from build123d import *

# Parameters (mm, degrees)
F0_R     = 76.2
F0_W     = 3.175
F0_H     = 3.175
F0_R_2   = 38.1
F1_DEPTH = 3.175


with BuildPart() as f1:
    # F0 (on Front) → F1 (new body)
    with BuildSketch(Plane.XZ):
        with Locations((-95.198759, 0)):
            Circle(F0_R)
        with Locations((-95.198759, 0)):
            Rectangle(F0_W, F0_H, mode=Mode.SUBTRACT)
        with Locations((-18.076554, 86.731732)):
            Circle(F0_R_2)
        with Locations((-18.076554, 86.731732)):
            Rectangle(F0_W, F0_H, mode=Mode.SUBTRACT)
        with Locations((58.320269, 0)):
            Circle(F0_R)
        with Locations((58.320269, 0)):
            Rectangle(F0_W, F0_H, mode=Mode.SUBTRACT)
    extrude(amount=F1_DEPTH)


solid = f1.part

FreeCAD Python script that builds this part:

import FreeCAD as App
import Part
import Sketcher
Q = App.Units.Quantity


def add_polygon(sketch, points):
    """Adds a closed chain of lines whose ends are joined by coincident constraints."""
    first, n = sketch.GeometryCount, len(points)
    for a, b in zip(points, points[1:] + points[:1]):
        sketch.addGeometry(Part.LineSegment(App.Vector(*a, 0), App.Vector(*b, 0)), False)
    for i in range(n):
        sketch.addConstraint(Sketcher.Constraint("Coincident", first + i, 2, first + (i + 1) % n, 1))

doc = App.newDocument("Part")
body = doc.addObject("PartDesign::Body", "Body")
body.AllowCompound = True

sketch1 = doc.addObject("Sketcher::SketchObject", "Sketch")
body.addObject(sketch1)
sketch1.AttachmentSupport = (doc.XZ_Plane, [""])
sketch1.MapMode = "FlatFace"
sketch1.addGeometry(Part.Circle(App.Vector(-95.2, 0, 0), App.Vector(0, 0, 1), 76.2), False)
add_polygon(sketch1, [(-93.6, -1.6), (-96.8, -1.6), (-96.8, 1.6), (-93.6, 1.6)])
sketch1.addGeometry(Part.Circle(App.Vector(-18.1, 86.7, 0), App.Vector(0, 0, 1), 38.1), False)
add_polygon(sketch1, [(-16.5, 85.1), (-19.7, 85.1), (-19.7, 88.3), (-16.5, 88.3)])
sketch1.addGeometry(Part.Circle(App.Vector(58.3, 0, 0), App.Vector(0, 0, 1), 76.2), False)
add_polygon(sketch1, [(59.9, -1.6), (56.7, -1.6), (56.7, 1.6), (59.9, 1.6)])
sketch1.addConstraint([
    Sketcher.Constraint("Horizontal", 1),
    Sketcher.Constraint("Vertical", 2),
    Sketcher.Constraint("Horizontal", 3),
    Sketcher.Constraint("Vertical", 4),
    Sketcher.Constraint("Horizontal", 6),
    Sketcher.Constraint("Vertical", 7),
    Sketcher.Constraint("Horizontal", 8),
    Sketcher.Constraint("Vertical", 9),
    Sketcher.Constraint("Horizontal", 11),
    Sketcher.Constraint("Vertical", 12),
    Sketcher.Constraint("Horizontal", 13),
    Sketcher.Constraint("Vertical", 14),
    Sketcher.Constraint("Equal", 0, 10),
    Sketcher.Constraint("PointOnObject", 0, 3, -1),
    Sketcher.Constraint("PointOnObject", 10, 3, -1),
    Sketcher.Constraint("Horizontal", 4, 2, 11, 2),
    Sketcher.Constraint("Horizontal", 3, 2, 12, 2),
    Sketcher.Constraint("Equal", 3, 6),
    Sketcher.Constraint("Equal", 8, 11),
    Sketcher.Constraint("Equal", 13, 2),
    Sketcher.Constraint("Equal", 4, 7),
    Sketcher.Constraint("Diameter", 0, Q("6 in")),
    Sketcher.Constraint("Diameter", 5, Q("3 in")),
    Sketcher.Constraint("DistanceX", 1, 2, 1, 1, Q("0.125 in")),
    Sketcher.Constraint("DistanceY", 1, 2, -1, 1, Q("0.0625 in")),
    Sketcher.Constraint("DistanceX", 1, 2, 0, 3, Q("0.0625 in")),
    Sketcher.Constraint("DistanceX", 6, 2, 5, 3, Q("0.0625 in")),
    Sketcher.Constraint("DistanceY", 6, 2, 5, 3, Q("0.0625 in")),
    Sketcher.Constraint("DistanceX", 11, 2, 10, 3, Q("0.0625 in")),
    Sketcher.Constraint("DistanceX", 0, 3, -1, 1, Q("95.198759 mm")),
    Sketcher.Constraint("DistanceY", -1, 1, 5, 3, Q("86.731732 mm")),
    Sketcher.Constraint("DistanceX", -1, 1, 10, 3, Q("58.320269 mm")),
    Sketcher.Constraint("DistanceX", 5, 3, -1, 1, Q("18.076554 mm")),
])
pad1 = doc.addObject("PartDesign::Pad", "Pad")
body.addObject(pad1)
pad1.Profile = sketch1
pad1.Length = Q("0.125 in")

doc.recompute()
